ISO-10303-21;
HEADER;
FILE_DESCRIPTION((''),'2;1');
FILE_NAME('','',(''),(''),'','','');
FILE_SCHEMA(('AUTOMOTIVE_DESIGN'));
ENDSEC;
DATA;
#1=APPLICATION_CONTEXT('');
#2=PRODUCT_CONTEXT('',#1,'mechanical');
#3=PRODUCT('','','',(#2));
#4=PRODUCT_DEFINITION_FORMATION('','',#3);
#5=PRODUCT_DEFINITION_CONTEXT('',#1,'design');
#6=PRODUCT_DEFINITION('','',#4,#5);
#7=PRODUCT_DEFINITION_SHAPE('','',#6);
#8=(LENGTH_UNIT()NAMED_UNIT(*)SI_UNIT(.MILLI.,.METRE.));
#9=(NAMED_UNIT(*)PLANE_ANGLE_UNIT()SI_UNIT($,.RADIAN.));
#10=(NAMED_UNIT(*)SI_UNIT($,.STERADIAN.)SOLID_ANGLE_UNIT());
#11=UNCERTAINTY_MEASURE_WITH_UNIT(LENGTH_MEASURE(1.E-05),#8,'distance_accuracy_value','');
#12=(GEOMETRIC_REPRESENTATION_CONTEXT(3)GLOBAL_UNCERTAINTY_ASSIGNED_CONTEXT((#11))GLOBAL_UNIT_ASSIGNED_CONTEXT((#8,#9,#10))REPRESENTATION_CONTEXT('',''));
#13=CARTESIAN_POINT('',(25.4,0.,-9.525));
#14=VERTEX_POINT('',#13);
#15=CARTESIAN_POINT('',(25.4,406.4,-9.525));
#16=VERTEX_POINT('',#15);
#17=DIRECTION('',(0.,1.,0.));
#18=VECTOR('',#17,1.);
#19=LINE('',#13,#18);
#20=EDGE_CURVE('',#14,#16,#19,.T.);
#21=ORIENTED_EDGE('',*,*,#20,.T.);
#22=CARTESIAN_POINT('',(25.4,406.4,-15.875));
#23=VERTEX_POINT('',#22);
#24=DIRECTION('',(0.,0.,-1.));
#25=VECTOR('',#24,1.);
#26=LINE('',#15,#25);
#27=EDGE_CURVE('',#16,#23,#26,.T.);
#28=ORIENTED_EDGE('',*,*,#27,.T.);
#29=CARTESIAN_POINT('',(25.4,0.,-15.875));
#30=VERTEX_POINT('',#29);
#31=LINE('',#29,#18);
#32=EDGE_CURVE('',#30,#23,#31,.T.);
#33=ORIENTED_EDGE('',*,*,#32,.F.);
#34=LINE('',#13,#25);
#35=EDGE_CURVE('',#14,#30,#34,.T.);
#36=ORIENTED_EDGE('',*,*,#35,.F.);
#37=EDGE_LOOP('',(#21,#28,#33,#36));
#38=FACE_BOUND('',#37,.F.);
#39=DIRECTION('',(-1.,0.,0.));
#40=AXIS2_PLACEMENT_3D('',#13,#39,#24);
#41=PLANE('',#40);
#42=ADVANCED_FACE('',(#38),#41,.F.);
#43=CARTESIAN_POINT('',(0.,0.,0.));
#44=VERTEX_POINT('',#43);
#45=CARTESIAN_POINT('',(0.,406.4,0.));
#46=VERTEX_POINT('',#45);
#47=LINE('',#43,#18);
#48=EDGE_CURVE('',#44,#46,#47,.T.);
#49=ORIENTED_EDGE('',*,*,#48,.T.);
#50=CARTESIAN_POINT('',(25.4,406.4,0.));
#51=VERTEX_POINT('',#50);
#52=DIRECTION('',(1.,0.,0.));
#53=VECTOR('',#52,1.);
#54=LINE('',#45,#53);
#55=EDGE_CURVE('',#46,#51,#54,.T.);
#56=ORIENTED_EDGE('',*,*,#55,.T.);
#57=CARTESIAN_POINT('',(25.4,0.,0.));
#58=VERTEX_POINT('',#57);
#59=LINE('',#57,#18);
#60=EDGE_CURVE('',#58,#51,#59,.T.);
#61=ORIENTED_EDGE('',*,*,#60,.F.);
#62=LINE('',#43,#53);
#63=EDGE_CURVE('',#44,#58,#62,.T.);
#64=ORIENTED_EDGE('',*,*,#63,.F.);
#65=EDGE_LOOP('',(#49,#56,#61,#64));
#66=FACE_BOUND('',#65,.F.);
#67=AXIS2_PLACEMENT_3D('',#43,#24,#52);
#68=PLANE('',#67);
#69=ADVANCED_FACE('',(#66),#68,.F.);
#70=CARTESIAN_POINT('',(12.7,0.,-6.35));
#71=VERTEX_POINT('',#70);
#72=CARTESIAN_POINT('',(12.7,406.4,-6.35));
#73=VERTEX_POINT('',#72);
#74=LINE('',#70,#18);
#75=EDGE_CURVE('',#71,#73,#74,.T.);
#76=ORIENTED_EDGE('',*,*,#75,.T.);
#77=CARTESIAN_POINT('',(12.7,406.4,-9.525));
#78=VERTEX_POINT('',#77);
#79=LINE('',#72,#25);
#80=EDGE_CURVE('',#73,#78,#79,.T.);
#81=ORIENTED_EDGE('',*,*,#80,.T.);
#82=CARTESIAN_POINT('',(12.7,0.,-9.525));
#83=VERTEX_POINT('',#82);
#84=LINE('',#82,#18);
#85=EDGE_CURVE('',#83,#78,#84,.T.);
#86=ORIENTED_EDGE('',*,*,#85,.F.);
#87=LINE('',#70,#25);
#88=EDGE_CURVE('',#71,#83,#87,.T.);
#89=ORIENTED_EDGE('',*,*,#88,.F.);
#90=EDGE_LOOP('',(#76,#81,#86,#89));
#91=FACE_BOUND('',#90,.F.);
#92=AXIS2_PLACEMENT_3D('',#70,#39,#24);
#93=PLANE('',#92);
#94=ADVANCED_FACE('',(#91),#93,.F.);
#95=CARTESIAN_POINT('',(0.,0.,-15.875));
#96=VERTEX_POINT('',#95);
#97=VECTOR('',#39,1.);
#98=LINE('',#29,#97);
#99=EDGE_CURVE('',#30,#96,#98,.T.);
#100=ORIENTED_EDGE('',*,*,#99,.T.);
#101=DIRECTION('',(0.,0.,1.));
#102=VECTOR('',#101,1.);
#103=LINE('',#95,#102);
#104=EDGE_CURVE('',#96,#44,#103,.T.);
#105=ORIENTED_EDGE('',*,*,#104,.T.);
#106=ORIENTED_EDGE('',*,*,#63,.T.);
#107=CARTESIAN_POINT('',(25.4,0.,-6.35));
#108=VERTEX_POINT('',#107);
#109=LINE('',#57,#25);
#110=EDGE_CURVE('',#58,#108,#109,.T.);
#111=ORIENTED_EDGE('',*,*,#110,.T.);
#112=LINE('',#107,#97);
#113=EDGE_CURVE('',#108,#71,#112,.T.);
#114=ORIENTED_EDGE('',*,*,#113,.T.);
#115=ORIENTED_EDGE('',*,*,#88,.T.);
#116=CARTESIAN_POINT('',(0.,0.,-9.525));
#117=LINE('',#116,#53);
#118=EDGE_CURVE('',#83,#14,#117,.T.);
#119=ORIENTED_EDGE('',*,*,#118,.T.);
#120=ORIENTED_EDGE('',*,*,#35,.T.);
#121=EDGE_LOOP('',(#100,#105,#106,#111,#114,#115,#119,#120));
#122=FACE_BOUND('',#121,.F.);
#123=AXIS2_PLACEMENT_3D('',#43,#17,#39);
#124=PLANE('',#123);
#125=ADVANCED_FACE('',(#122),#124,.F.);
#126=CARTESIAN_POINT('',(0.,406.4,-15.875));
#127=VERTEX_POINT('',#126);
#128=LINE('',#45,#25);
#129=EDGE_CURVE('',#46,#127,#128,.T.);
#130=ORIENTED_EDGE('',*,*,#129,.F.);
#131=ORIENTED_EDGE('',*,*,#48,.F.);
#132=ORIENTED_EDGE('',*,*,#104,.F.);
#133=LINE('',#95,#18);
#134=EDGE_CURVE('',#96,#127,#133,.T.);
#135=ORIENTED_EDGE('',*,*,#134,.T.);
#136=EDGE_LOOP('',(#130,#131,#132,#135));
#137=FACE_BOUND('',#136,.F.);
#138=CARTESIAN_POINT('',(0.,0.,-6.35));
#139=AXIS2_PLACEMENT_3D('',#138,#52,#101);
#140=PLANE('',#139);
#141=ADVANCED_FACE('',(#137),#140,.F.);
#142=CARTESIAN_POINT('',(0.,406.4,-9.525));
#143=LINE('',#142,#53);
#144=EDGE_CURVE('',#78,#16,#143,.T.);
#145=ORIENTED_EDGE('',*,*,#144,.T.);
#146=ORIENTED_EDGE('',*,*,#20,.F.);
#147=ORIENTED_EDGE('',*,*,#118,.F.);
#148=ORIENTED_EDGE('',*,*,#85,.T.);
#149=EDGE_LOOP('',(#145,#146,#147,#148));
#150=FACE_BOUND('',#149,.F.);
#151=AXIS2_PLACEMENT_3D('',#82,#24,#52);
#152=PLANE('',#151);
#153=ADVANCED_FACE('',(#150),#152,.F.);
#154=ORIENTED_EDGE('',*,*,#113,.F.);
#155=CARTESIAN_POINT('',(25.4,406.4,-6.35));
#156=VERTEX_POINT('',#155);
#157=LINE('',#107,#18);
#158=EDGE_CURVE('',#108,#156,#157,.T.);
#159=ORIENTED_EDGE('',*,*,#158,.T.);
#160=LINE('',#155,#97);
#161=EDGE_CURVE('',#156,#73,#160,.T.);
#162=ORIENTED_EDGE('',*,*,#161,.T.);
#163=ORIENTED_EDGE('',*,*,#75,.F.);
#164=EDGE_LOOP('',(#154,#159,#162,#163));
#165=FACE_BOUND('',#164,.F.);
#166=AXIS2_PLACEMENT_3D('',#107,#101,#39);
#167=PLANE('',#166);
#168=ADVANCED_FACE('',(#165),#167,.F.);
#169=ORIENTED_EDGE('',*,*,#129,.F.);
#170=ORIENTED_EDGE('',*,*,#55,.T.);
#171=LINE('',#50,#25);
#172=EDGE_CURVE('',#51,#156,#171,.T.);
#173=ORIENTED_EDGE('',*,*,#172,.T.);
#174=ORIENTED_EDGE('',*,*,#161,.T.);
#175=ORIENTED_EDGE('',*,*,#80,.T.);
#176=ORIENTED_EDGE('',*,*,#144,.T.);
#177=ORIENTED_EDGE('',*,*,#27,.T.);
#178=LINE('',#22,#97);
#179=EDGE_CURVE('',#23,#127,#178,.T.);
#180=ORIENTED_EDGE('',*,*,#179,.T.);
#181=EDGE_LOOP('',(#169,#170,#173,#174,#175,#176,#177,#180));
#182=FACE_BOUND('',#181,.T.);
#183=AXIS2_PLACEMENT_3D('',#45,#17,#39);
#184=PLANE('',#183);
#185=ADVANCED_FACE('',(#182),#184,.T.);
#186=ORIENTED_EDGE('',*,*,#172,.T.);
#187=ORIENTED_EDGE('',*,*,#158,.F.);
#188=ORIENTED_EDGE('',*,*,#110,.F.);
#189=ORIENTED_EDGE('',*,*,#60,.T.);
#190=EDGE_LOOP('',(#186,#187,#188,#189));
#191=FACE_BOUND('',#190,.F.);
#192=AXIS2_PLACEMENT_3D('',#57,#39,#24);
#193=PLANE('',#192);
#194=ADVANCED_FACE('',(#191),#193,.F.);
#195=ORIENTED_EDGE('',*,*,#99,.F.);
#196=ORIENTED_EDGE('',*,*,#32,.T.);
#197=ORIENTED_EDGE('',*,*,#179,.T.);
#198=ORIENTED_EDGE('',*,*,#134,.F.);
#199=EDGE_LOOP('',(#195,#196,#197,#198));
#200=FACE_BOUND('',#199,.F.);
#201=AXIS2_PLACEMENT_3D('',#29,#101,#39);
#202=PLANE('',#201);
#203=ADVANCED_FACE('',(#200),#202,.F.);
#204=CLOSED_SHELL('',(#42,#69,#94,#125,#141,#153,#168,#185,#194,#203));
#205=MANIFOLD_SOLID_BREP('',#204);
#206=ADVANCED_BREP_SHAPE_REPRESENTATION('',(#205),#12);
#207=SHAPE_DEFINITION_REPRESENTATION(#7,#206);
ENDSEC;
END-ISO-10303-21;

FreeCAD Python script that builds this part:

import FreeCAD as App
import Part
import Sketcher
from FreeCAD import Vector
Q = App.Units.Quantity


def add_polygon(sketch, points):
    """Adds a closed chain of lines whose ends are joined by coincident constraints."""
    first, n = sketch.GeometryCount, len(points)
    for a, b in zip(points, points[1:] + points[:1]):
        sketch.addGeometry(Part.LineSegment(App.Vector(*a, 0), App.Vector(*b, 0)), False)
    for i in range(n):
        sketch.addConstraint(Sketcher.Constraint("Coincident", first + i, 2, first + (i + 1) % n, 1))

doc = App.newDocument("Part")
body = doc.addObject("PartDesign::Body", "Body")

# Sketch on XZ plane
sketch1 = body.newObject("Sketcher::SketchObject", "Sketch")
sketch1.AttachmentSupport = (doc.getObject("XZ_Plane"), [""])
sketch1.MapMode = "FlatFace"
add_polygon(sketch1, [(0, 0), (25.4, 0), (25.4, -6.3), (12.7, -6.3), (12.7, -9.5), (25.4, -9.5), (25.4, -15.9), (0, -15.9)])  # lines 0-7
sketch1.addConstraint([
    Sketcher.Constraint("Horizontal", 0),
    Sketcher.Constraint("Vertical", 1),
    Sketcher.Constraint("Horizontal", 2),
    Sketcher.Constraint("Vertical", 3),
    Sketcher.Constraint("Horizontal", 4),
    Sketcher.Constraint("Vertical", 5),
    Sketcher.Constraint("Horizontal", 6),
    Sketcher.Constraint("Vertical", 7),
    Sketcher.Constraint("Coincident", 7, 2, -1, 1),
    Sketcher.Constraint("Vertical", 1, 2, 4, 2),
    Sketcher.Constraint("Equal", 1, 5),
    Sketcher.Constraint("DistanceX", 0, 1, 0, 2, Q("1 in")),
    Sketcher.Constraint("DistanceX", 2, 2, 2, 1, Q("0.5 in")),
    Sketcher.Constraint("DistanceY", 1, 2, 1, 1, Q("0.25 in")),
    Sketcher.Constraint("DistanceY", 3, 2, 3, 1, Q("0.125 in")),
])
pad1 = body.newObject("PartDesign::Pad", "Pad")
pad1.Profile = sketch1
pad1.Length = Q("16 in")
pad1.Reversed = True

doc.recompute()
